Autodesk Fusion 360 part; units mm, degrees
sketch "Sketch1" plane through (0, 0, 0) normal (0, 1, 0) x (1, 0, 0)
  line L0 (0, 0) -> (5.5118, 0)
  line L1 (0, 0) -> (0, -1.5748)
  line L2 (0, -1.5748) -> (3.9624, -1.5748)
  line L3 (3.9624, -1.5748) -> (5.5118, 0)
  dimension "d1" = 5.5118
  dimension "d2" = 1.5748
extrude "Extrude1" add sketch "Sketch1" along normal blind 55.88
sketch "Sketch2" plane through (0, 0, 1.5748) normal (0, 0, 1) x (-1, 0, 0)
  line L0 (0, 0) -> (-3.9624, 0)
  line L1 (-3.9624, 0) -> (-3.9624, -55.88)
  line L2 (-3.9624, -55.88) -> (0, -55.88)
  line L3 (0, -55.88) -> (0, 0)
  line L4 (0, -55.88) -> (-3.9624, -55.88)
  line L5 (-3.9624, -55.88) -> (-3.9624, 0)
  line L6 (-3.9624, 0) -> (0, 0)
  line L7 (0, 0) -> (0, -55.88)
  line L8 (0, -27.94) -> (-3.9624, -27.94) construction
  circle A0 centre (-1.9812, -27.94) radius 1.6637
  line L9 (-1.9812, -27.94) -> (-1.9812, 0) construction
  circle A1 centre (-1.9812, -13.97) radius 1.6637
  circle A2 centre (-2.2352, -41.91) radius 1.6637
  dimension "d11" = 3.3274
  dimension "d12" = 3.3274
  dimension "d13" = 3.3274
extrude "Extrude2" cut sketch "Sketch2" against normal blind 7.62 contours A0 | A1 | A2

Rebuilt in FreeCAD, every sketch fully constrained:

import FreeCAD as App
import Part
import Sketcher
Q = App.Units.Quantity

doc = App.newDocument("Part")
body = doc.addObject("PartDesign::Body", "Body")

# Sketch on XZ plane
sketch1 = body.newObject("Sketcher::SketchObject", "Sketch")
sketch1.AttachmentSupport = (doc.getObject("XZ_Plane"), [""])
sketch1.MapMode = "FlatFace"
sketch1.addGeometry([
    Part.LineSegment(App.Vector(5.5, 0, 0), App.Vector(0, 0, 0)),
    Part.LineSegment(App.Vector(0, 0, 0), App.Vector(0, 1.6, 0)),
    Part.LineSegment(App.Vector(0, 1.6, 0), App.Vector(4, 1.6, 0)),
    Part.LineSegment(App.Vector(4, 1.6, 0), App.Vector(5.5, 0, 0)),
], False)
sketch1.addConstraint([
    Sketcher.Constraint("Coincident", 0, 2, 1, 1),
    Sketcher.Constraint("Coincident", 1, 2, 2, 1),
    Sketcher.Constraint("Coincident", 2, 2, 3, 1),
    Sketcher.Constraint("Coincident", 3, 2, 0, 1),
    Sketcher.Constraint("Horizontal", 0),
    Sketcher.Constraint("Vertical", 1),
    Sketcher.Constraint("Horizontal", 2),
    Sketcher.Constraint("Coincident", 0, 2, -1, 1),
    Sketcher.Constraint("DistanceX", 0, 2, 0, 1, Q("0.217 in")),
    Sketcher.Constraint("DistanceY", 1, 1, 1, 2, Q("0.062 in")),
    Sketcher.Constraint("DistanceX", 2, 1, 2, 2, Q("0.156 in")),
])
pad1 = body.newObject("PartDesign::Pad", "Pad")
pad1.Profile = sketch1
pad1.Length = Q("2.2 in")
pad1.Reversed = True

# Sketch on XY plane
sketch2 = body.newObject("Sketcher::SketchObject", "Sketch001")
sketch2.AttachmentSupport = (doc.getObject("XY_Plane"), [""])
sketch2.MapMode = "FlatFace"
sketch2.AttachmentOffset = App.Placement(App.Vector(0, 0, 0.062 * 25.4), App.Rotation())
sketch2.addGeometry([
    Part.Circle(App.Vector(2, 27.9, 0), App.Vector(0, 0, 1), 1.7),
    Part.Circle(App.Vector(2, 14, 0), App.Vector(0, 0, 1), 1.7),
    Part.Circle(App.Vector(2.2, 41.9, 0), App.Vector(0, 0, 1), 1.7),
], False)
sketch2.addConstraint([
    Sketcher.Constraint("Equal", 0, 1),
    Sketcher.Constraint("Equal", 1, 2),
    Sketcher.Constraint("Vertical", 0, 3, 1, 3),
    Sketcher.Constraint("Diameter", 0, Q("0.131 in")),
    Sketcher.Constraint("DistanceY", -1, 1, 0, 3, Q("1.1 in")),
    Sketcher.Constraint("DistanceY", 1, 3, 2, 3, Q("1.1 in")),
    Sketcher.Constraint("DistanceY", -1, 1, 1, 3, Q("0.55 in")),
    Sketcher.Constraint("DistanceX", 0, 3, 2, 3, Q("0.01 in")),
    Sketcher.Constraint("DistanceX", -1, 1, 0, 3, Q("0.078 in")),
])
pocket1 = body.newObject("PartDesign::Pocket", "Pocket")
pocket1.Profile = sketch2
pocket1.Length = Q("0.3 in")

doc.recompute()
